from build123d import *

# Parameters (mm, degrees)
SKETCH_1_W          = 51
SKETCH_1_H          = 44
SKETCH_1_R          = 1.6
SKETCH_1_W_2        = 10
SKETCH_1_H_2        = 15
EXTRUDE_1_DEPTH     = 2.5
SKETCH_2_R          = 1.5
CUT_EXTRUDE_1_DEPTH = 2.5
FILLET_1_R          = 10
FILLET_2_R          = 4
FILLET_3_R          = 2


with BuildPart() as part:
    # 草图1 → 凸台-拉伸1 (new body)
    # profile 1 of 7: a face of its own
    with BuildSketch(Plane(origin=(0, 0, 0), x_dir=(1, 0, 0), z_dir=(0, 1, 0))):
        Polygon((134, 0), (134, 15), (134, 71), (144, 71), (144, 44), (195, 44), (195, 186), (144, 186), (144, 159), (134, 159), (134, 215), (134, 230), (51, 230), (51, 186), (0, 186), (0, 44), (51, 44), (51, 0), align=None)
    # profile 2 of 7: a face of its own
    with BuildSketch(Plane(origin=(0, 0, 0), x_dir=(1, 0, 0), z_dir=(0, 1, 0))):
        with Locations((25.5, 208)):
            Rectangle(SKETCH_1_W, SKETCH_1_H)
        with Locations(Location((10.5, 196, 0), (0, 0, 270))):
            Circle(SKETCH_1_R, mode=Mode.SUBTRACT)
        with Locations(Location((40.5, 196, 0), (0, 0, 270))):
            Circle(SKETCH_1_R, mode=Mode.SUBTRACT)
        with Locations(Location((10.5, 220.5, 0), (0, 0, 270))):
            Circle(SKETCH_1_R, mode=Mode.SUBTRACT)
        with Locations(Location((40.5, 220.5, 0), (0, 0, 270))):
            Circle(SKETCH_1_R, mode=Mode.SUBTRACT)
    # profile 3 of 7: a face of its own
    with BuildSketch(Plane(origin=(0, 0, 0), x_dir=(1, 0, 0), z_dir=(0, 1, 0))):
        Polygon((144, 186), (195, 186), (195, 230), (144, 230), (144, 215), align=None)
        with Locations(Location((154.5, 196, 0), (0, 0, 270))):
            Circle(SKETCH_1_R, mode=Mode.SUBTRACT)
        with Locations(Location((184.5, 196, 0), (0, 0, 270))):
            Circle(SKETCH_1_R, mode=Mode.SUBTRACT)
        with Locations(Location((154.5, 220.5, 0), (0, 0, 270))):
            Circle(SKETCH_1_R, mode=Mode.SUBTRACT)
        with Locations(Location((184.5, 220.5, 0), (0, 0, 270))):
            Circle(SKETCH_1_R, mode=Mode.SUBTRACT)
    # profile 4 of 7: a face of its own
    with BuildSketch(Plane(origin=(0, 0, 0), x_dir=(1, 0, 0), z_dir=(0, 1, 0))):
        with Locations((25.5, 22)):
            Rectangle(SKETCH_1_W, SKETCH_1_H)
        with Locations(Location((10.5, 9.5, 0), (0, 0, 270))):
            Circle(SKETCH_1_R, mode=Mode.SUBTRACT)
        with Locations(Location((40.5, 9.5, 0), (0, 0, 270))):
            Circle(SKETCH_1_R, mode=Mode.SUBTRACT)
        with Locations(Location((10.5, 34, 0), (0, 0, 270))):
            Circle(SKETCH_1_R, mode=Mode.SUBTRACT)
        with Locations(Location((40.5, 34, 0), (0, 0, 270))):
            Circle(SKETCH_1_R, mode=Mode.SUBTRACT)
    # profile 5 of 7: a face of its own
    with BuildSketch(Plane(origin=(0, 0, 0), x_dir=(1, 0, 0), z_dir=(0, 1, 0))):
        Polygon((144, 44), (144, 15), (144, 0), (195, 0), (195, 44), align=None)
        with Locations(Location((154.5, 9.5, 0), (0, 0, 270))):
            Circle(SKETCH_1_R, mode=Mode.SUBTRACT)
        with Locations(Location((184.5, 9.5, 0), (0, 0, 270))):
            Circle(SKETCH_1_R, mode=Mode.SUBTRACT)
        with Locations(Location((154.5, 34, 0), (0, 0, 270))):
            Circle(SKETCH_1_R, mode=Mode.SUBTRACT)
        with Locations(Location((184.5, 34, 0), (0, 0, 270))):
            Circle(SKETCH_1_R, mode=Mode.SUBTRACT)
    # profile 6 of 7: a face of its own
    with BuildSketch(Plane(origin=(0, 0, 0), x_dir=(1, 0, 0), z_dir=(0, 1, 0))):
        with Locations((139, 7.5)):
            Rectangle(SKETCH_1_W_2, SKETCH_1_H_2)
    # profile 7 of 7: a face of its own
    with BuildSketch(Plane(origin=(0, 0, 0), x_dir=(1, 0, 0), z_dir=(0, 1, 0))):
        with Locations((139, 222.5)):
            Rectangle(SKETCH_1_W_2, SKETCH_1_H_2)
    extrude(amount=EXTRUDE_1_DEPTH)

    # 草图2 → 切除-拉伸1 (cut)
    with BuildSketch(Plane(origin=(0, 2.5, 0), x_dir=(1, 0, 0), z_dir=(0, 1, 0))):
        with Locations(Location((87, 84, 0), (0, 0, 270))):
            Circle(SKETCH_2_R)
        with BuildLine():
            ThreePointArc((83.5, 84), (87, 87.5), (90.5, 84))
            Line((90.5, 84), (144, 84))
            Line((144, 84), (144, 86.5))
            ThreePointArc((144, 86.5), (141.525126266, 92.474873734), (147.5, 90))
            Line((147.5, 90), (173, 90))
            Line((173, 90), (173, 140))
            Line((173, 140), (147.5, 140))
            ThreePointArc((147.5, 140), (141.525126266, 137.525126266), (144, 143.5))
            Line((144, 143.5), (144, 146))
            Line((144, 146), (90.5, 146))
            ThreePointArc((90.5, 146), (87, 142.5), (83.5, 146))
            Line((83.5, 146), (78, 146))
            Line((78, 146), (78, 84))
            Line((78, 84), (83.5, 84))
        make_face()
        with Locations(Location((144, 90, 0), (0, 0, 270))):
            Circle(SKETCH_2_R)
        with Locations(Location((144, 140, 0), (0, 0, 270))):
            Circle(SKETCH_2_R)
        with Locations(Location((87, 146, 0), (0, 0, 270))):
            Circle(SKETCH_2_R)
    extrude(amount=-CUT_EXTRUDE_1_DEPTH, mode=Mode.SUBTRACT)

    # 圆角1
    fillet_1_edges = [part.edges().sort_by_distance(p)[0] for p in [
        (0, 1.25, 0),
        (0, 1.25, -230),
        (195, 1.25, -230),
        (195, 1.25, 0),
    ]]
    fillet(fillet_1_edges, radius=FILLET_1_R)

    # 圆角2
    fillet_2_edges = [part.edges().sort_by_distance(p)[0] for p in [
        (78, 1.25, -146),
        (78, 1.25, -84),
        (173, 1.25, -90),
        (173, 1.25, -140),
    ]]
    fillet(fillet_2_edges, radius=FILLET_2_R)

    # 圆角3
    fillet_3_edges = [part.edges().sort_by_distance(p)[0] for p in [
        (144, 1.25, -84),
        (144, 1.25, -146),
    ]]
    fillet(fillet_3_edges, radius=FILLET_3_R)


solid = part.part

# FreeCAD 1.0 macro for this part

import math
import FreeCAD as App
import Part
import Sketcher

V = App.Vector


def edges_at(feature, points):
    """Names of the edges that pass closest to the given points."""
    edges = feature.Shape.Edges
    near = lambda p: min(range(len(edges)), key=lambda i: edges[i].distToShape(Part.Vertex(*p))[0])
    return sorted({f"Edge{near(p) + 1}" for p in points})

doc = App.newDocument("Part")
body = doc.addObject("PartDesign::Body", "Body")

# Sketch on XZ plane
sketch1 = doc.addObject("Sketcher::SketchObject", "Sketch")
body.addObject(sketch1)
sketch1.AttachmentSupport = (doc.XZ_Plane, [""])
sketch1.MapMode = "FlatFace"
sketch1.addGeometry([
    Part.LineSegment(V(195, -230, 0), V(0, -230, 0)),  # 0
    Part.LineSegment(V(0, -230, 0), V(0, 0, 0)),  # 1
    Part.LineSegment(V(0, 0, 0), V(195, 0, 0)),  # 2
    Part.LineSegment(V(195, 0, 0), V(195, -230, 0)),  # 3
    Part.LineSegment(V(134, -15, 0), V(134, -71, 0)),  # 4
    Part.LineSegment(V(134, -71, 0), V(144, -71, 0)),  # 5
    Part.LineSegment(V(144, -71, 0), V(144, -15, 0)),  # 6
    Part.LineSegment(V(144, -15, 0), V(134, -15, 0)),  # 7
    Part.LineSegment(V(144, -159, 0), V(134, -159, 0)),  # 8
    Part.LineSegment(V(134, -159, 0), V(134, -215, 0)),  # 9
    Part.LineSegment(V(134, -215, 0), V(144, -215, 0)),  # 10
    Part.LineSegment(V(144, -215, 0), V(144, -159, 0)),  # 11
    Part.Circle(V(154.5, -34, 0), V(0, 0, 1), 1.6),  # 12
    Part.Circle(V(184.5, -34, 0), V(0, 0, 1), 1.6),  # 13
    Part.Circle(V(154.5, -9.5, 0), V(0, 0, 1), 1.6),  # 14
    Part.Circle(V(184.5, -9.5, 0), V(0, 0, 1), 1.6),  # 15
    Part.Circle(V(184.5, -220.5, 0), V(0, 0, 1), 1.6),  # 16
    Part.Circle(V(154.5, -196, 0), V(0, 0, 1), 1.6),  # 17
    Part.Circle(V(184.5, -196, 0), V(0, 0, 1), 1.6),  # 18
    Part.Circle(V(154.5, -220.5, 0), V(0, 0, 1), 1.6),  # 19
    Part.Circle(V(10.5, -220.5, 0), V(0, 0, 1), 1.6),  # 20
    Part.Circle(V(40.5, -220.5, 0), V(0, 0, 1), 1.6),  # 21
    Part.Circle(V(10.5, -196, 0), V(0, 0, 1), 1.6),  # 22
    Part.Circle(V(40.5, -196, 0), V(0, 0, 1), 1.6),  # 23
    Part.Circle(V(40.5, -34, 0), V(0, 0, 1), 1.6),  # 24
    Part.Circle(V(10.5, -34, 0), V(0, 0, 1), 1.6),  # 25
    Part.Circle(V(10.5, -9.5, 0), V(0, 0, 1), 1.6),  # 26
    Part.Circle(V(40.5, -9.5, 0), V(0, 0, 1), 1.6),  # 27
], False)
sketch1.addConstraint([
    Sketcher.Constraint("Coincident", 0, 2, 1, 1),
    Sketcher.Constraint("Coincident", 1, 2, 2, 1),
    Sketcher.Constraint("Coincident", 2, 2, 3, 1),
    Sketcher.Constraint("Coincident", 3, 2, 0, 1),
    Sketcher.Constraint("Coincident", 4, 2, 5, 1),
    Sketcher.Constraint("Coincident", 5, 2, 6, 1),
    Sketcher.Constraint("Coincident", 6, 2, 7, 1),
    Sketcher.Constraint("Coincident", 7, 2, 4, 1),
    Sketcher.Constraint("Coincident", 8, 2, 9, 1),
    Sketcher.Constraint("Coincident", 9, 2, 10, 1),
    Sketcher.Constraint("Coincident", 10, 2, 11, 1),
    Sketcher.Constraint("Coincident", 11, 2, 8, 1),
    Sketcher.Constraint("Horizontal", 0),
    Sketcher.Constraint("Vertical", 1),
    Sketcher.Constraint("Horizontal", 2),
    Sketcher.Constraint("Vertical", 3),
    Sketcher.Constraint("Vertical", 4),
    Sketcher.Constraint("Horizontal", 5),
    Sketcher.Constraint("Vertical", 6),
    Sketcher.Constraint("Horizontal", 7),
    Sketcher.Constraint("Horizontal", 8),
    Sketcher.Constraint("Vertical", 9),
    Sketcher.Constraint("Horizontal", 10),
    Sketcher.Constraint("Vertical", 11),
    Sketcher.Constraint("Coincident", 1, 2, -1, 1),
    Sketcher.Constraint("Equal", 12, 13),
    Sketcher.Constraint("Equal", 13, 14),
    Sketcher.Constraint("Equal", 14, 15),
    Sketcher.Constraint("Equal", 15, 16),
    Sketcher.Constraint("Equal", 16, 17),
    Sketcher.Constraint("Equal", 17, 18),
    Sketcher.Constraint("Equal", 18, 19),
    Sketcher.Constraint("Equal", 19, 20),
    Sketcher.Constraint("Equal", 20, 21),
    Sketcher.Constraint("Equal", 21, 22),
    Sketcher.Constraint("Equal", 22, 23),
    Sketcher.Constraint("Equal", 23, 24),
    Sketcher.Constraint("Equal", 24, 25),
    Sketcher.Constraint("Equal", 25, 26),
    Sketcher.Constraint("Equal", 26, 27),
    Sketcher.Constraint("Horizontal", 12, 3, 13, 3),
    Sketcher.Constraint("Horizontal", 14, 3, 15, 3),
    Sketcher.Constraint("Horizontal", 17, 3, 18, 3),
    Sketcher.Constraint("Horizontal", 16, 3, 19, 3),
    Sketcher.Constraint("Horizontal", 19, 3, 20, 3),
    Sketcher.Constraint("Horizontal", 20, 3, 21, 3),
    Sketcher.Constraint("Horizontal", 18, 3, 22, 3),
    Sketcher.Constraint("Horizontal", 22, 3, 23, 3),
    Sketcher.Constraint("Horizontal", 13, 3, 24, 3),
    Sketcher.Constraint("Horizontal", 24, 3, 25, 3),
    Sketcher.Constraint("Horizontal", 15, 3, 26, 3),
    Sketcher.Constraint("Horizontal", 26, 3, 27, 3),
    Sketcher.Constraint("Vertical", 12, 3, 14, 3),
    Sketcher.Constraint("Vertical", 13, 3, 15, 3),
    Sketcher.Constraint("Vertical", 15, 3, 16, 3),
    Sketcher.Constraint("Vertical", 14, 3, 17, 3),
    Sketcher.Constraint("Vertical", 16, 3, 18, 3),
    Sketcher.Constraint("Vertical", 17, 3, 19, 3),
    Sketcher.Constraint("Vertical", 20, 3, 22, 3),
    Sketcher.Constraint("Vertical", 21, 3, 23, 3),
    Sketcher.Constraint("Vertical", 23, 3, 24, 3),
    Sketcher.Constraint("Vertical", 22, 3, 25, 3),
    Sketcher.Constraint("Vertical", 25, 3, 26, 3),
    Sketcher.Constraint("Vertical", 24, 3, 27, 3),
    Sketcher.Constraint("Vertical", 7, 2, 8, 2),
    Sketcher.Constraint("Vertical", 6, 2, 10, 2),
    Sketcher.Constraint("Equal", 6, 9),
    Sketcher.Constraint("Diameter", 12, 3.2),
    Sketcher.Constraint("DistanceX", 0, 2, 0, 1, 195.0),
    Sketcher.Constraint("DistanceX", 5, 1, 5, 2, 10.0),
    Sketcher.Constraint("DistanceY", 1, 1, 1, 2, 230.0),
    Sketcher.Constraint("DistanceY", 4, 2, 4, 1, 56.0),
    Sketcher.Constraint("DistanceY", 12, 3, -1, 1, 34.0),
    Sketcher.Constraint("DistanceY", 17, 3, -1, 1, 196.0),
    Sketcher.Constraint("DistanceX", -1, 1, 4, 2, 134.0),
    Sketcher.Constraint("DistanceY", 4, 2, -1, 1, 71.0),
    Sketcher.Constraint("DistanceY", 8, 2, -1, 1, 159.0),
    Sketcher.Constraint("DistanceX", 12, 3, 13, 3, 30.0),
    Sketcher.Constraint("DistanceY", 16, 3, 15, 3, 211.0),
    Sketcher.Constraint("DistanceX", 20, 3, 19, 3, 144.0),
    Sketcher.Constraint("DistanceX", 20, 3, 21, 3, 30.0),
    Sketcher.Constraint("DistanceX", -1, 1, 12, 3, 154.5),
    Sketcher.Constraint("DistanceY", 14, 3, -1, 1, 9.5),
])
pad1 = doc.addObject("PartDesign::Pad", "Pad")
body.addObject(pad1)
pad1.Profile = sketch1
pad1.Length = 2.5
pad1.Reversed = True

# Sketch on XZ plane
sketch2 = doc.addObject("Sketcher::SketchObject", "Sketch001")
body.addObject(sketch2)
sketch2.AttachmentSupport = (doc.XZ_Plane, [""])
sketch2.MapMode = "FlatFace"
sketch2.AttachmentOffset = App.Placement(V(0, 0, -2.5), App.Rotation())
sketch2.addGeometry([
    Part.Circle(V(87, -84, 0), V(0, 0, 1), 1.5),  # 0
    Part.ArcOfCircle(Part.Circle(V(87, -84, 0), V(0, 0, 1), 3.5), math.radians(180), math.radians(360)),  # 1
    Part.LineSegment(V(90.5, -84, 0), V(144, -84, 0)),  # 2
    Part.LineSegment(V(144, -84, 0), V(144, -86.5, 0)),  # 3
    Part.ArcOfCircle(Part.Circle(V(144, -90, 0), V(0, 0, 1), 3.5), math.radians(90), math.radians(360)),  # 4
    Part.LineSegment(V(147.5, -90, 0), V(173, -90, 0)),  # 5
    Part.LineSegment(V(173, -90, 0), V(173, -140, 0)),  # 6
    Part.LineSegment(V(173, -140, 0), V(147.5, -140, 0)),  # 7
    Part.ArcOfCircle(Part.Circle(V(144, -140, 0), V(0, 0, 1), 3.5), math.radians(0), math.radians(270)),  # 8
    Part.LineSegment(V(144, -143.5, 0), V(144, -146, 0)),  # 9
    Part.LineSegment(V(144, -146, 0), V(90.5, -146, 0)),  # 10
    Part.ArcOfCircle(Part.Circle(V(87, -146, 0), V(0, 0, 1), 3.5), math.radians(0), math.radians(180)),  # 11
    Part.LineSegment(V(83.5, -146, 0), V(78, -146, 0)),  # 12
    Part.LineSegment(V(78, -146, 0), V(78, -84, 0)),  # 13
    Part.LineSegment(V(78, -84, 0), V(83.5, -84, 0)),  # 14
    Part.Circle(V(144, -90, 0), V(0, 0, 1), 1.5),  # 15
    Part.Circle(V(144, -140, 0), V(0, 0, 1), 1.5),  # 16
    Part.Circle(V(87, -146, 0), V(0, 0, 1), 1.5),  # 17
], False)
sketch2.addConstraint([
    Sketcher.Constraint("Coincident", 1, 2, 2, 1),
    Sketcher.Constraint("Coincident", 2, 2, 3, 1),
    Sketcher.Constraint("Coincident", 3, 2, 4, 1),
    Sketcher.Constraint("Coincident", 4, 2, 5, 1),
    Sketcher.Constraint("Coincident", 5, 2, 6, 1),
    Sketcher.Constraint("Coincident", 6, 2, 7, 1),
    Sketcher.Constraint("Coincident", 7, 2, 8, 1),
    Sketcher.Constraint("Coincident", 8, 2, 9, 1),
    Sketcher.Constraint("Coincident", 9, 2, 10, 1),
    Sketcher.Constraint("Coincident", 10, 2, 11, 1),
    Sketcher.Constraint("Coincident", 11, 2, 12, 1),
    Sketcher.Constraint("Coincident", 12, 2, 13, 1),
    Sketcher.Constraint("Coincident", 13, 2, 14, 1),
    Sketcher.Constraint("Coincident", 14, 2, 1, 1),
    Sketcher.Constraint("Horizontal", 2),
    Sketcher.Constraint("Vertical", 3),
    Sketcher.Constraint("Horizontal", 5),
    Sketcher.Constraint("Vertical", 6),
    Sketcher.Constraint("Horizontal", 7),
    Sketcher.Constraint("Vertical", 9),
    Sketcher.Constraint("Horizontal", 10),
    Sketcher.Constraint("Horizontal", 12),
    Sketcher.Constraint("Vertical", 13),
    Sketcher.Constraint("Horizontal", 14),
    Sketcher.Constraint("Coincident", 1, 3, 0, 3),
    Sketcher.Constraint("Coincident", 15, 3, 4, 3),
    Sketcher.Constraint("Coincident", 16, 3, 8, 3),
    Sketcher.Constraint("Coincident", 17, 3, 11, 3),
    Sketcher.Constraint("Equal", 1, 4),
    Sketcher.Constraint("Equal", 4, 8),
    Sketcher.Constraint("Equal", 8, 11),
    Sketcher.Constraint("Equal", 0, 15),
    Sketcher.Constraint("Equal", 15, 16),
    Sketcher.Constraint("Equal", 16, 17),
    Sketcher.Constraint("Horizontal", 0, 3, 1, 2),
    Sketcher.Constraint("Horizontal", 15, 3, 4, 2),
    Sketcher.Constraint("Horizontal", 16, 3, 6, 2),
    Sketcher.Constraint("Horizontal", 17, 3, 9, 2),
    Sketcher.Constraint("Horizontal", 10, 2, 11, 2),
    Sketcher.Constraint("Horizontal", 2, 2, 13, 2),
    Sketcher.Constraint("Vertical", 4, 3, 8, 3),
    Sketcher.Constraint("Vertical", 1, 3, 11, 3),
    Sketcher.Constraint("Vertical", 16, 3, 2, 2),
    Sketcher.Constraint("Vertical", 3, 2, 8, 2),
    Sketcher.Constraint("Equal", 3, 9),
    Sketcher.Constraint("Diameter", 0, 3.0),
    Sketcher.Constraint("Radius", 1, 3.5),
    Sketcher.Constraint("DistanceY", 6, 2, 6, 1, 50.0),
    Sketcher.Constraint("DistanceY", 13, 1, 13, 2, 62.0),
    Sketcher.Constraint("DistanceX", 2, 1, 2, 2, 53.5),
    Sketcher.Constraint("DistanceX", 5, 1, 5, 2, 25.5),
    Sketcher.Constraint("DistanceX", 12, 2, 12, 1, 5.5),
    Sketcher.Constraint("DistanceX", -1, 1, 0, 3, 87.0),
    Sketcher.Constraint("DistanceY", 0, 3, -1, 1, 84.0),
])
pocket1 = doc.addObject("PartDesign::Pocket", "Pocket")
body.addObject(pocket1)
pocket1.Profile = sketch2
pocket1.Length = 2.5
pocket1.Reversed = True
doc.recompute()

fillet = doc.addObject("PartDesign::Fillet", "Fillet")
body.addObject(fillet)
fillet.Base = (pocket1, edges_at(pocket1, [
    (0, 1.25, 0),
    (0, 1.25, -230),
    (195, 1.25, -230),
    (195, 1.25, 0),
]))
fillet.Radius = 10
doc.recompute()

fillet2 = doc.addObject("PartDesign::Fillet", "Fillet001")
body.addObject(fillet2)
fillet2.Base = (fillet, edges_at(fillet, [
    (78, 1.25, -146),
    (78, 1.25, -84),
    (173, 1.25, -90),
    (173, 1.25, -140),
]))
fillet2.Radius = 4
doc.recompute()

fillet3 = doc.addObject("PartDesign::Fillet", "Fillet002")
body.addObject(fillet3)
fillet3.Base = (fillet2, edges_at(fillet2, [(144, 1.25, -84), (144, 1.25, -146)]))
fillet3.Radius = 2

doc.recompute()
